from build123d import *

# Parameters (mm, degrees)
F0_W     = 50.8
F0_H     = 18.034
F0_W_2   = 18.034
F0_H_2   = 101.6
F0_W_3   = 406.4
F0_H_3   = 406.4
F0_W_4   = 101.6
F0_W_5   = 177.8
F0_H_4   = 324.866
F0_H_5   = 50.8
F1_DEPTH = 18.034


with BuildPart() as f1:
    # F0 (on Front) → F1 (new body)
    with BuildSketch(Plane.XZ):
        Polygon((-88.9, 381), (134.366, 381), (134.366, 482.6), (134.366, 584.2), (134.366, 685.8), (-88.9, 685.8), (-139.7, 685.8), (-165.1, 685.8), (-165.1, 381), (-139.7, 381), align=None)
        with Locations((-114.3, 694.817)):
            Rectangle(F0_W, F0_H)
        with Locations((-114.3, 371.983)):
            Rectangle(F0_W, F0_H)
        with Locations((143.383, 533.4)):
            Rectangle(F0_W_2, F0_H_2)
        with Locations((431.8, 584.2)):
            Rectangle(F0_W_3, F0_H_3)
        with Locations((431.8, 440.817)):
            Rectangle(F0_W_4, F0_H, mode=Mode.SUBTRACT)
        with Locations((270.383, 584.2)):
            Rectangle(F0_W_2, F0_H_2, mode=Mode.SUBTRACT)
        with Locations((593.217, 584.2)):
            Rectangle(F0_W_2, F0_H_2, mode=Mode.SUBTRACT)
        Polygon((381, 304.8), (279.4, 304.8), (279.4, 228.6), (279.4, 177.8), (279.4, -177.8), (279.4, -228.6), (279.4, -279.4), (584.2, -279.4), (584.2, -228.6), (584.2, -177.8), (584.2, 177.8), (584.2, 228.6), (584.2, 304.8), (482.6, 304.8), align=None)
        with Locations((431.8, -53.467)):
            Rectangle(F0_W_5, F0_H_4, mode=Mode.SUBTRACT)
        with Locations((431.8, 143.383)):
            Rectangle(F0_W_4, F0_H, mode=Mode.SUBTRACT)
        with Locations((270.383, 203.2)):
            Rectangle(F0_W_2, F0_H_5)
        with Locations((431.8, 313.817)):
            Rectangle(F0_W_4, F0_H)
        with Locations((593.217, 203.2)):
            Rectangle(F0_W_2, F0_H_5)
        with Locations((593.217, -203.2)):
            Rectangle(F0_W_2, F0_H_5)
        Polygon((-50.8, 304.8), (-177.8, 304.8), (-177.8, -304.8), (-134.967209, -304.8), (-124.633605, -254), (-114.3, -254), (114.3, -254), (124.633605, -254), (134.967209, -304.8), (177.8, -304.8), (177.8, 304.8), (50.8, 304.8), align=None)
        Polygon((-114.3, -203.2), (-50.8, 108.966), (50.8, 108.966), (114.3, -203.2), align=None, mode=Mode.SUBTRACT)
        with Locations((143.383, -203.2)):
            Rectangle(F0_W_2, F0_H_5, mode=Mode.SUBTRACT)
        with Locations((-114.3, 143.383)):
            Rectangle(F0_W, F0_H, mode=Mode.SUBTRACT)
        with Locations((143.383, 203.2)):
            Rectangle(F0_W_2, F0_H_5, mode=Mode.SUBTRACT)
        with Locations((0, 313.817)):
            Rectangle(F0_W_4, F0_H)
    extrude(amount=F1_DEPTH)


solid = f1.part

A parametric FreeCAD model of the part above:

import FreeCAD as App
import Part
import Sketcher

V = App.Vector
Q = App.Units.Quantity


def add_polygon(sketch, points):
    """Adds a closed chain of lines whose ends are joined by coincident constraints."""
    first, n = sketch.GeometryCount, len(points)
    for a, b in zip(points, points[1:] + points[:1]):
        sketch.addGeometry(Part.LineSegment(App.Vector(*a, 0), App.Vector(*b, 0)), False)
    for i in range(n):
        sketch.addConstraint(Sketcher.Constraint("Coincident", first + i, 2, first + (i + 1) % n, 1))

doc = App.newDocument("Part")
body = doc.addObject("PartDesign::Body", "Body")
body.AllowCompound = True

# Sketch on XZ plane
sketch1 = doc.addObject("Sketcher::SketchObject", "Sketch")
body.addObject(sketch1)
sketch1.AttachmentSupport = (doc.XZ_Plane, [""])
sketch1.MapMode = "FlatFace"
add_polygon(sketch1, [(134, 381), (134, 483), (152, 483), (152, 584), (134, 584), (134, 686), (-89, 686), (-89, 704), (-140, 704), (-140, 686), (-165, 686), (-165, 381), (-140, 381), (-140, 363), (-89, 363), (-89, 381)])  # lines 0-15
add_polygon(sketch1, [(229, 787), (229, 381), (635, 381), (635, 787)])  # lines 16-19
add_polygon(sketch1, [(483, 432), (381, 432), (381, 450), (483, 450)])  # lines 20-23
add_polygon(sketch1, [(279, 533), (261, 533), (261, 635), (279, 635)])  # lines 24-27
add_polygon(sketch1, [(602, 533), (584, 533), (584, 635), (602, 635)])  # lines 28-31
add_polygon(sketch1, [(279, 305), (279, 229), (261, 229), (261, 178), (279, 178), (279, -279), (584, -279), (584, -229), (602, -229), (602, -178), (584, -178), (584, 178), (602, 178), (602, 229), (584, 229), (584, 305), (483, 305), (483, 323), (381, 323), (381, 305)])  # lines 32-51
add_polygon(sketch1, [(521, -216), (343, -216), (343, 109), (521, 109)])  # lines 52-55
add_polygon(sketch1, [(483, 134), (381, 134), (381, 152), (483, 152)])  # lines 56-59
add_polygon(sketch1, [(-178, 305), (-178, -305), (-135, -305), (-125, -254), (125, -254), (135, -305), (178, -305), (178, 305), (51, 305), (51, 323), (-51, 323), (-51, 305)])  # lines 60-71
add_polygon(sketch1, [(114, -203), (-114, -203), (-51, 109), (51, 109)])  # lines 72-75
add_polygon(sketch1, [(152, -229), (134, -229), (134, -178), (152, -178)])  # lines 76-79
add_polygon(sketch1, [(-89, 134), (-140, 134), (-140, 152), (-89, 152)])  # lines 80-83
add_polygon(sketch1, [(152, 178), (134, 178), (134, 229), (152, 229)])  # lines 84-87
sketch1.addConstraint(Sketcher.Constraint("Vertical", 0))
sketch1.addConstraint(Sketcher.Constraint("Horizontal", 1))
sketch1.addConstraint(Sketcher.Constraint("Vertical", 2))
sketch1.addConstraint(Sketcher.Constraint("Horizontal", 3))
sketch1.addConstraint(Sketcher.Constraint("Vertical", 4))
sketch1.addConstraint(Sketcher.Constraint("Horizontal", 5))
sketch1.addConstraint(Sketcher.Constraint("Vertical", 6))
sketch1.addConstraint(Sketcher.Constraint("Horizontal", 7))
sketch1.addConstraint(Sketcher.Constraint("Vertical", 8))
sketch1.addConstraint(Sketcher.Constraint("Horizontal", 9))
sketch1.addConstraint(Sketcher.Constraint("Vertical", 10))
sketch1.addConstraint(Sketcher.Constraint("Horizontal", 11))
sketch1.addConstraint(Sketcher.Constraint("Vertical", 12))
sketch1.addConstraint(Sketcher.Constraint("Horizontal", 13))
sketch1.addConstraint(Sketcher.Constraint("Vertical", 14))
sketch1.addConstraint(Sketcher.Constraint("Horizontal", 15))
sketch1.addConstraint(Sketcher.Constraint("Vertical", 16))
sketch1.addConstraint(Sketcher.Constraint("Horizontal", 17))
sketch1.addConstraint(Sketcher.Constraint("Vertical", 18))
sketch1.addConstraint(Sketcher.Constraint("Horizontal", 19))
sketch1.addConstraint(Sketcher.Constraint("Horizontal", 20))
sketch1.addConstraint(Sketcher.Constraint("Vertical", 21))
sketch1.addConstraint(Sketcher.Constraint("Horizontal", 22))
sketch1.addConstraint(Sketcher.Constraint("Vertical", 23))
sketch1.addConstraint(Sketcher.Constraint("Horizontal", 24))
sketch1.addConstraint(Sketcher.Constraint("Vertical", 25))
sketch1.addConstraint(Sketcher.Constraint("Horizontal", 26))
sketch1.addConstraint(Sketcher.Constraint("Vertical", 27))
sketch1.addConstraint(Sketcher.Constraint("Horizontal", 28))
sketch1.addConstraint(Sketcher.Constraint("Vertical", 29))
sketch1.addConstraint(Sketcher.Constraint("Horizontal", 30))
sketch1.addConstraint(Sketcher.Constraint("Vertical", 31))
sketch1.addConstraint(Sketcher.Constraint("Vertical", 32))
sketch1.addConstraint(Sketcher.Constraint("Horizontal", 33))
sketch1.addConstraint(Sketcher.Constraint("Vertical", 34))
sketch1.addConstraint(Sketcher.Constraint("Horizontal", 35))
sketch1.addConstraint(Sketcher.Constraint("Vertical", 36))
sketch1.addConstraint(Sketcher.Constraint("Horizontal", 37))
sketch1.addConstraint(Sketcher.Constraint("Vertical", 38))
sketch1.addConstraint(Sketcher.Constraint("Horizontal", 39))
sketch1.addConstraint(Sketcher.Constraint("Vertical", 40))
sketch1.addConstraint(Sketcher.Constraint("Horizontal", 41))
sketch1.addConstraint(Sketcher.Constraint("Vertical", 42))
sketch1.addConstraint(Sketcher.Constraint("Horizontal", 43))
sketch1.addConstraint(Sketcher.Constraint("Vertical", 44))
sketch1.addConstraint(Sketcher.Constraint("Horizontal", 45))
sketch1.addConstraint(Sketcher.Constraint("Vertical", 46))
sketch1.addConstraint(Sketcher.Constraint("Horizontal", 47))
sketch1.addConstraint(Sketcher.Constraint("Vertical", 48))
sketch1.addConstraint(Sketcher.Constraint("Horizontal", 49))
sketch1.addConstraint(Sketcher.Constraint("Vertical", 50))
sketch1.addConstraint(Sketcher.Constraint("Horizontal", 51))
sketch1.addConstraint(Sketcher.Constraint("Horizontal", 52))
sketch1.addConstraint(Sketcher.Constraint("Vertical", 53))
sketch1.addConstraint(Sketcher.Constraint("Horizontal", 54))
sketch1.addConstraint(Sketcher.Constraint("Vertical", 55))
sketch1.addConstraint(Sketcher.Constraint("Horizontal", 56))
sketch1.addConstraint(Sketcher.Constraint("Vertical", 57))
sketch1.addConstraint(Sketcher.Constraint("Horizontal", 58))
sketch1.addConstraint(Sketcher.Constraint("Vertical", 59))
sketch1.addConstraint(Sketcher.Constraint("Vertical", 60))
sketch1.addConstraint(Sketcher.Constraint("Horizontal", 61))
sketch1.addConstraint(Sketcher.Constraint("Horizontal", 63))
sketch1.addConstraint(Sketcher.Constraint("Horizontal", 65))
sketch1.addConstraint(Sketcher.Constraint("Vertical", 66))
sketch1.addConstraint(Sketcher.Constraint("Horizontal", 67))
sketch1.addConstraint(Sketcher.Constraint("Vertical", 68))
sketch1.addConstraint(Sketcher.Constraint("Horizontal", 69))
sketch1.addConstraint(Sketcher.Constraint("Vertical", 70))
sketch1.addConstraint(Sketcher.Constraint("Horizontal", 71))
sketch1.addConstraint(Sketcher.Constraint("Horizontal", 72))
sketch1.addConstraint(Sketcher.Constraint("Horizontal", 74))
sketch1.addConstraint(Sketcher.Constraint("Horizontal", 76))
sketch1.addConstraint(Sketcher.Constraint("Vertical", 77))
sketch1.addConstraint(Sketcher.Constraint("Horizontal", 78))
sketch1.addConstraint(Sketcher.Constraint("Vertical", 79))
sketch1.addConstraint(Sketcher.Constraint("Horizontal", 80))
sketch1.addConstraint(Sketcher.Constraint("Vertical", 81))
sketch1.addConstraint(Sketcher.Constraint("Horizontal", 82))
sketch1.addConstraint(Sketcher.Constraint("Vertical", 83))
sketch1.addConstraint(Sketcher.Constraint("Horizontal", 84))
sketch1.addConstraint(Sketcher.Constraint("Vertical", 85))
sketch1.addConstraint(Sketcher.Constraint("Horizontal", 86))
sketch1.addConstraint(Sketcher.Constraint("Vertical", 87))
sketch1.addConstraint(Sketcher.Constraint("Symmetric", 60, 2, 66, 2, -1, 1))
sketch1.addConstraint(Sketcher.Constraint("Symmetric", 61, 2, 64, 2, -2))
sketch1.addConstraint(Sketcher.Constraint("Symmetric", 67, 2, 70, 2, -2))
sketch1.addConstraint(Sketcher.Constraint("Symmetric", 40, 2, 43, 2, -1))
sketch1.addConstraint(Sketcher.Constraint("Symmetric", 38, 2, 45, 2, -1))
sketch1.addConstraint(Sketcher.Constraint("Symmetric", 77, 2, 84, 2, -1))
sketch1.addConstraint(Sketcher.Constraint("Symmetric", 79, 2, 86, 2, -1))
sketch1.addConstraint(Sketcher.Constraint("Parallel", 62, 73))
sketch1.addConstraint(Sketcher.Constraint("Parallel", 64, 75))
sketch1.addConstraint(Sketcher.Constraint("Horizontal", 5, 2, 8, 2))
sketch1.addConstraint(Sketcher.Constraint("Horizontal", 11, 2, 14, 2))
sketch1.addConstraint(Sketcher.Constraint("Horizontal", 15, 2, 16, 2))
sketch1.addConstraint(Sketcher.Constraint("Horizontal", 27, 2, 28, 2))
sketch1.addConstraint(Sketcher.Constraint("Horizontal", 26, 2, 29, 2))
sketch1.addConstraint(Sketcher.Constraint("Horizontal", 35, 2, 42, 2))
sketch1.addConstraint(Sketcher.Constraint("Horizontal", 33, 2, 44, 2))
sketch1.addConstraint(Sketcher.Constraint("Horizontal", 47, 2, 50, 2))
sketch1.addConstraint(Sketcher.Constraint("Horizontal", 51, 2, 66, 2))
sketch1.addConstraint(Sketcher.Constraint("Horizontal", 49, 2, 68, 2))
sketch1.addConstraint(Sketcher.Constraint("Horizontal", 54, 2, 73, 2))
sketch1.addConstraint(Sketcher.Constraint("Horizontal", 39, 2, 76, 2))
sketch1.addConstraint(Sketcher.Constraint("Horizontal", 41, 2, 77, 2))
sketch1.addConstraint(Sketcher.Constraint("Horizontal", 59, 2, 80, 2))
sketch1.addConstraint(Sketcher.Constraint("Horizontal", 58, 2, 81, 2))
sketch1.addConstraint(Sketcher.Constraint("Vertical", 0, 2, 3, 2))
sketch1.addConstraint(Sketcher.Constraint("Vertical", 8, 2, 11, 2))
sketch1.addConstraint(Sketcher.Constraint("Vertical", 6, 2, 13, 2))
sketch1.addConstraint(Sketcher.Constraint("Vertical", 27, 2, 32, 2))
sketch1.addConstraint(Sketcher.Constraint("Vertical", 25, 2, 33, 2))
sketch1.addConstraint(Sketcher.Constraint("Vertical", 32, 2, 35, 2))
sketch1.addConstraint(Sketcher.Constraint("Vertical", 29, 2, 37, 2))
sketch1.addConstraint(Sketcher.Constraint("Vertical", 31, 2, 39, 2))
sketch1.addConstraint(Sketcher.Constraint("Vertical", 38, 2, 41, 2))
sketch1.addConstraint(Sketcher.Constraint("Vertical", 23, 2, 47, 2))
sketch1.addConstraint(Sketcher.Constraint("Vertical", 21, 2, 49, 2))
sketch1.addConstraint(Sketcher.Constraint("Vertical", 50, 2, 56, 2))
sketch1.addConstraint(Sketcher.Constraint("Vertical", 48, 2, 58, 2))
sketch1.addConstraint(Sketcher.Constraint("Vertical", 70, 2, 73, 2))
sketch1.addConstraint(Sketcher.Constraint("Vertical", 68, 2, 74, 2))
sketch1.addConstraint(Sketcher.Constraint("Vertical", 15, 2, 76, 2))
sketch1.addConstraint(Sketcher.Constraint("Vertical", 2, 2, 78, 2))
sketch1.addConstraint(Sketcher.Constraint("Vertical", 12, 2, 80, 2))
sketch1.addConstraint(Sketcher.Constraint("Vertical", 14, 2, 82, 2))
sketch1.addConstraint(Sketcher.Constraint("Equal", 3, 24))
sketch1.addConstraint(Sketcher.Constraint("Equal", 26, 28))
sketch1.addConstraint(Sketcher.Constraint("Equal", 22, 47))
sketch1.addConstraint(Sketcher.Constraint("Equal", 49, 51))
sketch1.addConstraint(Sketcher.Constraint("Equal", 58, 69))
sketch1.addConstraint(Sketcher.Constraint("Equal", 74, 0))
sketch1.addConstraint(Sketcher.Constraint("Equal", 0, 2))
sketch1.addConstraint(Sketcher.Constraint("Equal", 2, 4))
sketch1.addConstraint(Sketcher.Constraint("Equal", 86, 6))
sketch1.addConstraint(Sketcher.Constraint("Equal", 8, 12))
sketch1.addConstraint(Sketcher.Constraint("Equal", 19, 16))
sketch1.addConstraint(Sketcher.Constraint("Equal", 14, 21))
sketch1.addConstraint(Sketcher.Constraint("Equal", 4, 25))
sketch1.addConstraint(Sketcher.Constraint("Equal", 82, 34))
sketch1.addConstraint(Sketcher.Constraint("Equal", 34, 38))
sketch1.addConstraint(Sketcher.Constraint("Equal", 23, 48))
sketch1.addConstraint(Sketcher.Constraint("Equal", 50, 57))
sketch1.addConstraint(Sketcher.Constraint("Equal", 62, 64))
sketch1.addConstraint(Sketcher.Constraint("DistanceX", 7, 2, 7, 1, Q("2 in")))
sketch1.addConstraint(Sketcher.Constraint("DistanceX", 9, 2, 9, 1, Q("1 in")))
sketch1.addConstraint(Sketcher.Constraint("DistanceX", 17, 1, 17, 2, Q("16 in")))
sketch1.addConstraint(Sketcher.Constraint("DistanceX", 20, 2, 20, 1, Q("4 in")))
sketch1.addConstraint(Sketcher.Constraint("DistanceX", 52, 2, 52, 1, Q("7 in")))
sketch1.addConstraint(Sketcher.Constraint("DistanceX", 67, 2, 67, 1, Q("5 in")))
sketch1.addConstraint(Sketcher.Constraint("DistanceX", 72, 2, 72, 1, Q("9 in")))
sketch1.addConstraint(Sketcher.Constraint("DistanceY", 32, 2, 32, 1, Q("3 in")))
sketch1.addConstraint(Sketcher.Constraint("DistanceY", 36, 2, 36, 1, Q("18 in")))
sketch1.addConstraint(Sketcher.Constraint("DistanceY", -1, 1, 0, 2, Q("19 in")))
sketch1.addConstraint(Sketcher.Constraint("DistanceX", -1, 1, 1, 2, Q("6 in")))
sketch1.addConstraint(Sketcher.Constraint("DistanceX", -1, 1, 16, 2, Q("9 in")))
sketch1.addConstraint(Sketcher.Constraint("DistanceX", -1, 1, 20, 2, Q("15 in")))
sketch1.addConstraint(Sketcher.Constraint("DistanceY", -1, 1, 20, 2, Q("17 in")))
sketch1.addConstraint(Sketcher.Constraint("DistanceY", -1, 1, 24, 2, Q("21 in")))
sketch1.addConstraint(Sketcher.Constraint("DistanceY", -1, 1, 57, 2, Q("6 in")))
sketch1.addConstraint(Sketcher.Constraint("DistanceY", 62, 2, -1, 1, Q("10 in")))
sketch1.addConstraint(Sketcher.Constraint("DistanceY", 72, 2, -1, 1, Q("8 in")))
sketch1.addConstraint(Sketcher.Constraint("DistanceX", 1, 1, 1, 2, Q("0.71 in")))
sketch1.addConstraint(Sketcher.Constraint("DistanceX", 5, 2, 5, 1, Q("8.79 in")))
sketch1.addConstraint(Sketcher.Constraint("DistanceY", 53, 1, 53, 2, Q("12.79 in")))
sketch1.addConstraint(Sketcher.Constraint("DistanceX", -1, 1, 52, 2, Q("13.5 in")))
sketch1.addConstraint(Sketcher.Constraint("DistanceY", 52, 2, -1, 1, Q("8.5 in")))
sketch1.addConstraint(Sketcher.Constraint("DistanceX", 61, 1, 61, 2, 42.832791))
pad1 = doc.addObject("PartDesign::Pad", "Pad")
body.addObject(pad1)
pad1.Profile = sketch1
pad1.Length = Q("0.71 in")

doc.recompute()
